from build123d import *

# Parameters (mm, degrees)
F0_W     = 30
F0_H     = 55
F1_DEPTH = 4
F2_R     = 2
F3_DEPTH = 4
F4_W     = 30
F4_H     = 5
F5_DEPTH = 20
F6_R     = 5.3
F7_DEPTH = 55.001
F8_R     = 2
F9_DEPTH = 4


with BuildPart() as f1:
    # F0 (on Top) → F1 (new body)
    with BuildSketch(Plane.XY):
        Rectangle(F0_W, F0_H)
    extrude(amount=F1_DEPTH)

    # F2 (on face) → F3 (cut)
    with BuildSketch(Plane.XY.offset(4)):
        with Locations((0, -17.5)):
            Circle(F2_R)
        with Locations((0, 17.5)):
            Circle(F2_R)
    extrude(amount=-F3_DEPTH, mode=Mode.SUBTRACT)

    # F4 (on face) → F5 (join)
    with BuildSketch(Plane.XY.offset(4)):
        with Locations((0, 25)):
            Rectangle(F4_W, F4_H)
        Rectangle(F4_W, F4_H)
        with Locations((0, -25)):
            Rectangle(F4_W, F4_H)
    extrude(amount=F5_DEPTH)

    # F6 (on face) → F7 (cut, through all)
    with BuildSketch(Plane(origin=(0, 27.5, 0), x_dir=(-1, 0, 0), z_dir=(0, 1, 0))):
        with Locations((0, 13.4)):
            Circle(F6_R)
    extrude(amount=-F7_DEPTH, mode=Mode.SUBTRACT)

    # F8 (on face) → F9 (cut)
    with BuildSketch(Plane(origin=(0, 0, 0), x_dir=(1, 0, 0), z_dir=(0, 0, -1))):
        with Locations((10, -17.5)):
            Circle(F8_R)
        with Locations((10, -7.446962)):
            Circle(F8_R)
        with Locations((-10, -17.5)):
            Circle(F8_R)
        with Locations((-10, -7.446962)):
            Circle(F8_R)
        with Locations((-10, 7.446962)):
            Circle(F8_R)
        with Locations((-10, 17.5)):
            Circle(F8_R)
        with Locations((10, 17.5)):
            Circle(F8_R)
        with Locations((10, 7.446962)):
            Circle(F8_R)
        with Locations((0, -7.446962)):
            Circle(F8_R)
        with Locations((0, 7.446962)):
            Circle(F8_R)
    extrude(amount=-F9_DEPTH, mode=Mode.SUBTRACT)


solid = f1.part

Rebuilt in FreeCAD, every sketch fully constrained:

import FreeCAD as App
import Part
import Sketcher


def add_polygon(sketch, points):
    """Adds a closed chain of lines whose ends are joined by coincident constraints."""
    first, n = sketch.GeometryCount, len(points)
    for a, b in zip(points, points[1:] + points[:1]):
        sketch.addGeometry(Part.LineSegment(App.Vector(*a, 0), App.Vector(*b, 0)), False)
    for i in range(n):
        sketch.addConstraint(Sketcher.Constraint("Coincident", first + i, 2, first + (i + 1) % n, 1))

doc = App.newDocument("Part")
body = doc.addObject("PartDesign::Body", "Body")

sketch1 = doc.addObject("Sketcher::SketchObject", "Sketch")
body.addObject(sketch1)
sketch1.AttachmentSupport = (doc.XY_Plane, [""])
sketch1.MapMode = "FlatFace"
add_polygon(sketch1, [(-15, 28), (-15, -28), (15, -28), (15, 28)])
sketch1.addConstraint([
    Sketcher.Constraint("Vertical", 0),
    Sketcher.Constraint("Horizontal", 1),
    Sketcher.Constraint("Vertical", 2),
    Sketcher.Constraint("Horizontal", 3),
    Sketcher.Constraint("Symmetric", 0, 2, 2, 2, -1, 1),
    Sketcher.Constraint("DistanceX", 1, 1, 1, 2, 30.0),
    Sketcher.Constraint("DistanceY", 0, 2, 0, 1, 55.0),
])
pad1 = doc.addObject("PartDesign::Pad", "Pad")
body.addObject(pad1)
pad1.Profile = sketch1
pad1.Length = 4

sketch2 = doc.addObject("Sketcher::SketchObject", "Sketch001")
body.addObject(sketch2)
sketch2.AttachmentSupport = (doc.XY_Plane, [""])
sketch2.MapMode = "FlatFace"
sketch2.AttachmentOffset = App.Placement(App.Vector(0, 0, 4), App.Rotation())
sketch2.addGeometry([
    Part.Circle(App.Vector(0, -17.5, 0), App.Vector(0, 0, 1), 2),
    Part.Circle(App.Vector(0, 17.5, 0), App.Vector(0, 0, 1), 2),
], False)
sketch2.addConstraint([
    Sketcher.Constraint("Equal", 0, 1),
    Sketcher.Constraint("Symmetric", 0, 3, 1, 3, -1, 1),
    Sketcher.Constraint("PointOnObject", 0, 3, -2),
    Sketcher.Constraint("Diameter", 0, 4.0),
    Sketcher.Constraint("DistanceY", 0, 3, 1, 3, 35.0),
])
pocket1 = doc.addObject("PartDesign::Pocket", "Pocket")
body.addObject(pocket1)
pocket1.Profile = sketch2
pocket1.Length = 4

sketch3 = doc.addObject("Sketcher::SketchObject", "Sketch002")
body.addObject(sketch3)
sketch3.AttachmentSupport = (doc.XY_Plane, [""])
sketch3.MapMode = "FlatFace"
sketch3.AttachmentOffset = App.Placement(App.Vector(0, 0, 4), App.Rotation())
add_polygon(sketch3, [(-15, 28), (-15, 22), (15, 22), (15, 28)])
add_polygon(sketch3, [(-15, 2), (-15, -2), (15, -2), (15, 2)])
add_polygon(sketch3, [(-15, -22), (-15, -28), (15, -28), (15, -22)])
sketch3.addConstraint([
    Sketcher.Constraint("Vertical", 0),
    Sketcher.Constraint("Horizontal", 1),
    Sketcher.Constraint("Vertical", 2),
    Sketcher.Constraint("Horizontal", 3),
    Sketcher.Constraint("Vertical", 4),
    Sketcher.Constraint("Horizontal", 5),
    Sketcher.Constraint("Vertical", 6),
    Sketcher.Constraint("Horizontal", 7),
    Sketcher.Constraint("Vertical", 8),
    Sketcher.Constraint("Horizontal", 9),
    Sketcher.Constraint("Vertical", 10),
    Sketcher.Constraint("Horizontal", 11),
    Sketcher.Constraint("Symmetric", 4, 2, 6, 2, -1, 1),
    Sketcher.Constraint("Symmetric", 2, 2, 8, 2, -1, 1),
    Sketcher.Constraint("Symmetric", 0, 2, 10, 2, -1, 1),
    Sketcher.Constraint("Vertical", 3, 2, 4, 2),
    Sketcher.Constraint("Vertical", 2, 2, 5, 2),
    Sketcher.Constraint("Equal", 2, 4),
    Sketcher.Constraint("DistanceX", 1, 1, 1, 2, 30.0),
    Sketcher.Constraint("DistanceY", 0, 2, 0, 1, 5.0),
    Sketcher.Constraint("DistanceY", 4, 2, 0, 2, 25.0),
])
pad2 = doc.addObject("PartDesign::Pad", "Pad001")
body.addObject(pad2)
pad2.Profile = sketch3
pad2.Length = 20

sketch4 = doc.addObject("Sketcher::SketchObject", "Sketch003")
body.addObject(sketch4)
sketch4.AttachmentSupport = (doc.XZ_Plane, [""])
sketch4.MapMode = "FlatFace"
sketch4.AttachmentOffset = App.Placement(App.Vector(0, 0, -27.5), App.Rotation())
sketch4.addGeometry(Part.Circle(App.Vector(0, 13, 0), App.Vector(0, 0, 1), 5), False)
sketch4.addConstraint([
    Sketcher.Constraint("PointOnObject", 0, 3, -2),
    Sketcher.Constraint("Diameter", 0, 10.6),
    Sketcher.Constraint("DistanceY", -1, 1, 0, 3, 13.4),
])
pocket2 = doc.addObject("PartDesign::Pocket", "Pocket001")
body.addObject(pocket2)
pocket2.Profile = sketch4
pocket2.Type = "ThroughAll"
pocket2.Reversed = True

sketch5 = doc.addObject("Sketcher::SketchObject", "Sketch004")
body.addObject(sketch5)
sketch5.AttachmentSupport = (doc.XY_Plane, [""])
sketch5.MapMode = "FlatFace"
sketch5.addGeometry([
    Part.Circle(App.Vector(10, 17.5, 0), App.Vector(0, 0, 1), 2),
    Part.Circle(App.Vector(10, 7.4, 0), App.Vector(0, 0, 1), 2),
    Part.Circle(App.Vector(-10, 17.5, 0), App.Vector(0, 0, 1), 2),
    Part.Circle(App.Vector(-10, 7.4, 0), App.Vector(0, 0, 1), 2),
    Part.Circle(App.Vector(-10, -7.4, 0), App.Vector(0, 0, 1), 2),
    Part.Circle(App.Vector(-10, -17.5, 0), App.Vector(0, 0, 1), 2),
    Part.Circle(App.Vector(10, -17.5, 0), App.Vector(0, 0, 1), 2),
    Part.Circle(App.Vector(10, -7.4, 0), App.Vector(0, 0, 1), 2),
    Part.Circle(App.Vector(0, 7.4, 0), App.Vector(0, 0, 1), 2),
    Part.Circle(App.Vector(0, -7.4, 0), App.Vector(0, 0, 1), 2),
], False)
sketch5.addConstraint([
    Sketcher.Constraint("Equal", 0, 1),
    Sketcher.Constraint("Equal", 1, 2),
    Sketcher.Constraint("Equal", 2, 3),
    Sketcher.Constraint("Equal", 3, 4),
    Sketcher.Constraint("Equal", 4, 5),
    Sketcher.Constraint("Equal", 5, 6),
    Sketcher.Constraint("Equal", 6, 7),
    Sketcher.Constraint("Equal", 7, 8),
    Sketcher.Constraint("Equal", 8, 9),
    Sketcher.Constraint("Symmetric", 1, 3, 4, 3, -1, 1),
    Sketcher.Constraint("Symmetric", 0, 3, 5, 3, -1, 1),
    Sketcher.Constraint("Symmetric", 2, 3, 6, 3, -1, 1),
    Sketcher.Constraint("Symmetric", 3, 3, 7, 3, -1, 1),
    Sketcher.Constraint("Symmetric", 8, 3, 9, 3, -1, 1),
    Sketcher.Constraint("Symmetric", 0, 3, 2, 3, -2),
    Sketcher.Constraint("Symmetric", 1, 3, 3, 3, -2),
    Sketcher.Constraint("PointOnObject", 8, 3, -2),
    Sketcher.Constraint("Horizontal", 3, 3, 8, 3),
    Sketcher.Constraint("Vertical", 0, 3, 1, 3),
    Sketcher.Constraint("Diameter", 0, 4.0),
    Sketcher.Constraint("DistanceX", -1, 1, 0, 3, 10.0),
    Sketcher.Constraint("DistanceY", 5, 3, 2, 3, 35.0),
    Sketcher.Constraint("DistanceY", 1, 3, 0, 3, 10.053038),
])
pocket3 = doc.addObject("PartDesign::Pocket", "Pocket002")
body.addObject(pocket3)
pocket3.Profile = sketch5
pocket3.Length = 4
pocket3.Reversed = True

doc.recompute()
